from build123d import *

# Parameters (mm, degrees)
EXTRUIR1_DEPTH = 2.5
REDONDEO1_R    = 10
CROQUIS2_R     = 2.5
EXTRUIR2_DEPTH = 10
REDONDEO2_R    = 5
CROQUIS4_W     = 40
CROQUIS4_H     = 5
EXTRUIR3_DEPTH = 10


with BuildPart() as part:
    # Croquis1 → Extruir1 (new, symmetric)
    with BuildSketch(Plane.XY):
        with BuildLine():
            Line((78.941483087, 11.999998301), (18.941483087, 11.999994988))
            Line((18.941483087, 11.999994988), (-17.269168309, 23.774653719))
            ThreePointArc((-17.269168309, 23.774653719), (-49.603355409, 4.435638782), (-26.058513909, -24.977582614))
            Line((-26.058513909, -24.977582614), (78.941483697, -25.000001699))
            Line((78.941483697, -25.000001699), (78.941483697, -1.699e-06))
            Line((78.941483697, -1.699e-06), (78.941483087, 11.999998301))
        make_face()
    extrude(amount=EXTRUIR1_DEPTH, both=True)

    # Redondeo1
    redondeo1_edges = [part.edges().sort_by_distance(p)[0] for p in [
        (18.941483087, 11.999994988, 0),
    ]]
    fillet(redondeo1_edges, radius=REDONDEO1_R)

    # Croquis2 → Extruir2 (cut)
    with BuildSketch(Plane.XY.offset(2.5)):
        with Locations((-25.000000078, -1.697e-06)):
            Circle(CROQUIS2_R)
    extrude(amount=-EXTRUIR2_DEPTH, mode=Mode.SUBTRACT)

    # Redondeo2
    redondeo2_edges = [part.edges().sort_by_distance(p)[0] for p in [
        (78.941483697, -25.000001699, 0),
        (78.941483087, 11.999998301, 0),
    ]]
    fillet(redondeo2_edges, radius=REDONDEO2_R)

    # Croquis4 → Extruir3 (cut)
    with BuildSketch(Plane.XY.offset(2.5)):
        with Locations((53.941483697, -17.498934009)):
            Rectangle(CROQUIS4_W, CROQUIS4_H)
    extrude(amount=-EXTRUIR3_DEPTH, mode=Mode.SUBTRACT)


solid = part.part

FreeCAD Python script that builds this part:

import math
import FreeCAD as App
import Part
import Sketcher

V = App.Vector
Q = App.Units.Quantity


def edges_at(feature, points):
    """Names of the edges that pass closest to the given points."""
    edges = feature.Shape.Edges
    near = lambda p: min(range(len(edges)), key=lambda i: edges[i].distToShape(Part.Vertex(*p))[0])
    return sorted({f"Edge{near(p) + 1}" for p in points})

doc = App.newDocument("Part")
body = doc.addObject("PartDesign::Body", "Body")

# Sketch on XY plane
sketch1 = body.newObject("Sketcher::SketchObject", "Sketch")
sketch1.AttachmentSupport = (doc.getObject("XY_Plane"), [""])
sketch1.MapMode = "FlatFace"
sketch1.addGeometry(Part.LineSegment(V(79, 12, 0), V(19, 12, 0)), False)
sketch1.addGeometry(Part.LineSegment(V(19, 12, 0), V(-17, 24, 0)), False)
sketch1.addGeometry(Part.ArcOfCircle(Part.Circle(V(-25, 0, 0), V(0, 0, 1), 25), math.radians(72), math.radians(268)), False)
sketch1.addGeometry(Part.LineSegment(V(-26, -25, 0), V(79, -25, 0)), False)
sketch1.addGeometry(Part.LineSegment(V(79, -25, 0), V(79, 0, 0)), False)
sketch1.addGeometry(Part.LineSegment(V(79, 0, 0), V(79, 12, 0)), False)
sketch1.addConstraint(Sketcher.Constraint("Coincident", 0, 2, 1, 1))
sketch1.addConstraint(Sketcher.Constraint("Tangent", 1, 2, 2, 1))
sketch1.addConstraint(Sketcher.Constraint("Coincident", 2, 2, 3, 1))
sketch1.addConstraint(Sketcher.Constraint("Coincident", 3, 2, 4, 1))
sketch1.addConstraint(Sketcher.Constraint("Coincident", 4, 2, 5, 1))
sketch1.addConstraint(Sketcher.Constraint("Coincident", 5, 2, 0, 1))
sketch1.addConstraint(Sketcher.Constraint("Vertical", 4))
sketch1.addConstraint(Sketcher.Constraint("Vertical", 5))
sketch1.addConstraint(Sketcher.Constraint("PointOnObject", 2, 3, -1))
sketch1.addConstraint(Sketcher.Constraint("PointOnObject", 4, 2, -1))
sketch1.addConstraint(Sketcher.Constraint("Radius", 2, 25.0))
sketch1.addConstraint(Sketcher.Constraint("DistanceY", 4, 1, 4, 2, 25.0))
sketch1.addConstraint(Sketcher.Constraint("DistanceY", 5, 1, 5, 2, 12.0))
sketch1.addConstraint(Sketcher.Constraint("Angle", 0, Q("-179.999997 deg")))
sketch1.addConstraint(Sketcher.Constraint("Distance", 0, 60.0))
sketch1.addConstraint(Sketcher.Constraint("Distance", 3, 105.0))
sketch1.addConstraint(Sketcher.Constraint("DistanceX", 2, 3, -1, 1, 25.0))
sketch1.addConstraint(Sketcher.Constraint("DistanceX", 1, 2, -1, 1, 17.269168))
pad1 = body.newObject("PartDesign::Pad", "Pad")
pad1.Profile = sketch1
pad1.Length = 5
pad1.Midplane = True
doc.recompute()

fillet = body.newObject("PartDesign::Fillet", "Fillet")
fillet.Base = (pad1, edges_at(pad1, [(18.941, 12, 0)]))
fillet.Radius = 10

# Sketch on XY plane
sketch2 = body.newObject("Sketcher::SketchObject", "Sketch001")
sketch2.AttachmentSupport = (doc.getObject("XY_Plane"), [""])
sketch2.MapMode = "FlatFace"
sketch2.AttachmentOffset = App.Placement(V(0, 0, 2.5), App.Rotation())
sketch2.addGeometry(Part.Circle(V(-25, 0, 0), V(0, 0, 1), 2.5), False)
sketch2.addConstraint(Sketcher.Constraint("PointOnObject", 0, 3, -1))
sketch2.addConstraint(Sketcher.Constraint("Diameter", 0, 5.0))
sketch2.addConstraint(Sketcher.Constraint("DistanceX", 0, 3, -1, 1, 25.0))
pocket1 = body.newObject("PartDesign::Pocket", "Pocket")
pocket1.Profile = sketch2
pocket1.Length = 10
doc.recompute()

fillet2 = body.newObject("PartDesign::Fillet", "Fillet001")
fillet2.Base = (pocket1, edges_at(pocket1, [(78.941, -25, 0), (78.941, 12, 0)]))
fillet2.Radius = 5

# Sketch on XY plane
sketch3 = body.newObject("Sketcher::SketchObject", "Sketch002")
sketch3.AttachmentSupport = (doc.getObject("XY_Plane"), [""])
sketch3.MapMode = "FlatFace"
sketch3.AttachmentOffset = App.Placement(V(0, 0, 2.5), App.Rotation())
sketch3.addGeometry(Part.LineSegment(V(34, -15, 0), V(34, -20, 0)), False)
sketch3.addGeometry(Part.LineSegment(V(34, -20, 0), V(74, -20, 0)), False)
sketch3.addGeometry(Part.LineSegment(V(74, -20, 0), V(74, -15, 0)), False)
sketch3.addGeometry(Part.LineSegment(V(74, -15, 0), V(34, -15, 0)), False)
sketch3.addConstraint(Sketcher.Constraint("Coincident", 0, 2, 1, 1))
sketch3.addConstraint(Sketcher.Constraint("Coincident", 1, 2, 2, 1))
sketch3.addConstraint(Sketcher.Constraint("Coincident", 2, 2, 3, 1))
sketch3.addConstraint(Sketcher.Constraint("Coincident", 3, 2, 0, 1))
sketch3.addConstraint(Sketcher.Constraint("Vertical", 0))
sketch3.addConstraint(Sketcher.Constraint("Horizontal", 1))
sketch3.addConstraint(Sketcher.Constraint("Vertical", 2))
sketch3.addConstraint(Sketcher.Constraint("Horizontal", 3))
sketch3.addConstraint(Sketcher.Constraint("DistanceX", 1, 1, 1, 2, 40.0))
sketch3.addConstraint(Sketcher.Constraint("DistanceY", 0, 2, 0, 1, 5.0))
sketch3.addConstraint(Sketcher.Constraint("DistanceX", -1, 1, 0, 2, 33.941484))
sketch3.addConstraint(Sketcher.Constraint("DistanceY", 0, 2, -1, 1, 19.998934))
pocket2 = body.newObject("PartDesign::Pocket", "Pocket001")
pocket2.Profile = sketch3
pocket2.Length = 10

doc.recompute()
